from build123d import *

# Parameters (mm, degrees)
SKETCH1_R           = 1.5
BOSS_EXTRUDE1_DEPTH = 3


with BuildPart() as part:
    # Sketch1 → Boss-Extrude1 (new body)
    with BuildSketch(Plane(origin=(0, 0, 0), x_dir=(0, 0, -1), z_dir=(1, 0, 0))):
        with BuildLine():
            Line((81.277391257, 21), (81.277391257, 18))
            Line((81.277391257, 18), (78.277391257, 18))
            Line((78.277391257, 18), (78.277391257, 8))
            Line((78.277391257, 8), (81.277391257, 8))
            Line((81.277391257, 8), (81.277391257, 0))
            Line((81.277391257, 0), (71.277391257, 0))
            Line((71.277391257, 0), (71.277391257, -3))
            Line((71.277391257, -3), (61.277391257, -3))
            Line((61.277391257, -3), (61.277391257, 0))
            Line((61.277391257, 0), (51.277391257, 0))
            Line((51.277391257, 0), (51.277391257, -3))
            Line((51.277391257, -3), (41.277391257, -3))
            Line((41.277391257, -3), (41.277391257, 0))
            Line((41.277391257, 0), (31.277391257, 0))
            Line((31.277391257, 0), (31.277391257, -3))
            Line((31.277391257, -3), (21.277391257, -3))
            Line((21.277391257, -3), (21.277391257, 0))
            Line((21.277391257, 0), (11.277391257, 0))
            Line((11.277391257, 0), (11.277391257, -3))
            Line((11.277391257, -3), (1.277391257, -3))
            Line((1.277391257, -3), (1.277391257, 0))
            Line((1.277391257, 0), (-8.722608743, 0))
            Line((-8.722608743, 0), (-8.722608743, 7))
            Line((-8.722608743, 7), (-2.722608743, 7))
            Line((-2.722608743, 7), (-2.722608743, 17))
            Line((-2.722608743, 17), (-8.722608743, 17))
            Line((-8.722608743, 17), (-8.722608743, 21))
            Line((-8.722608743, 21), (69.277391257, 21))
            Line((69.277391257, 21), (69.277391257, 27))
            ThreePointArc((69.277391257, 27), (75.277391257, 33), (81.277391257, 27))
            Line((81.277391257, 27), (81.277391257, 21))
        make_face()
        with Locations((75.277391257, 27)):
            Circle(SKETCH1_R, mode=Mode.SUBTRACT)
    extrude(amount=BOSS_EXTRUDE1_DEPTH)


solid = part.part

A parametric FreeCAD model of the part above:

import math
import FreeCAD as App
import Part
import Sketcher
Q = App.Units.Quantity

doc = App.newDocument("Part")
body = doc.addObject("PartDesign::Body", "Body")

sketch1 = body.newObject("Sketcher::SketchObject", "Sketch")
sketch1.AttachmentSupport = (doc.getObject("YZ_Plane"), [""])
sketch1.MapMode = "FlatFace"
sketch1.addGeometry(Part.LineSegment(App.Vector(18, -78.3, 0), App.Vector(18, -81.3, 0)), False)
sketch1.addGeometry(Part.LineSegment(App.Vector(18, -81.3, 0), App.Vector(27, -81.3, 0)), False)
sketch1.addGeometry(Part.ArcOfCircle(Part.Circle(App.Vector(27, -75.3, 0), App.Vector(0, 0, 1), 6), math.radians(-90), math.radians(90)), False)
sketch1.addGeometry(Part.LineSegment(App.Vector(27, -69.3, 0), App.Vector(21, -69.3, 0)), False)
sketch1.addGeometry(Part.LineSegment(App.Vector(21, -69.3, 0), App.Vector(21, 8.7, 0)), False)
sketch1.addGeometry(Part.LineSegment(App.Vector(21, 8.7, 0), App.Vector(17, 8.7, 0)), False)
sketch1.addGeometry(Part.LineSegment(App.Vector(17, 8.7, 0), App.Vector(17, 2.7, 0)), False)
sketch1.addGeometry(Part.LineSegment(App.Vector(17, 2.7, 0), App.Vector(7, 2.7, 0)), False)
sketch1.addGeometry(Part.LineSegment(App.Vector(7, 2.7, 0), App.Vector(7, 8.7, 0)), False)
sketch1.addGeometry(Part.LineSegment(App.Vector(7, 8.7, 0), App.Vector(0, 8.7, 0)), False)
sketch1.addGeometry(Part.LineSegment(App.Vector(0, 8.7, 0), App.Vector(0, -1.3, 0)), False)
sketch1.addGeometry(Part.LineSegment(App.Vector(0, -1.3, 0), App.Vector(-3, -1.3, 0)), False)
sketch1.addGeometry(Part.LineSegment(App.Vector(-3, -1.3, 0), App.Vector(-3, -11.3, 0)), False)
sketch1.addGeometry(Part.LineSegment(App.Vector(-3, -11.3, 0), App.Vector(0, -11.3, 0)), False)
sketch1.addGeometry(Part.LineSegment(App.Vector(0, -11.3, 0), App.Vector(0, -21.3, 0)), False)
sketch1.addGeometry(Part.LineSegment(App.Vector(0, -21.3, 0), App.Vector(-3, -21.3, 0)), False)
sketch1.addGeometry(Part.LineSegment(App.Vector(-3, -21.3, 0), App.Vector(-3, -31.3, 0)), False)
sketch1.addGeometry(Part.LineSegment(App.Vector(-3, -31.3, 0), App.Vector(0, -31.3, 0)), False)
sketch1.addGeometry(Part.LineSegment(App.Vector(0, -31.3, 0), App.Vector(0, -41.3, 0)), False)
sketch1.addGeometry(Part.LineSegment(App.Vector(0, -41.3, 0), App.Vector(-3, -41.3, 0)), False)
sketch1.addGeometry(Part.LineSegment(App.Vector(-3, -41.3, 0), App.Vector(-3, -51.3, 0)), False)
sketch1.addGeometry(Part.LineSegment(App.Vector(-3, -51.3, 0), App.Vector(0, -51.3, 0)), False)
sketch1.addGeometry(Part.LineSegment(App.Vector(0, -51.3, 0), App.Vector(0, -61.3, 0)), False)
sketch1.addGeometry(Part.LineSegment(App.Vector(0, -61.3, 0), App.Vector(-3, -61.3, 0)), False)
sketch1.addGeometry(Part.LineSegment(App.Vector(-3, -61.3, 0), App.Vector(-3, -71.3, 0)), False)
sketch1.addGeometry(Part.LineSegment(App.Vector(-3, -71.3, 0), App.Vector(0, -71.3, 0)), False)
sketch1.addGeometry(Part.LineSegment(App.Vector(0, -71.3, 0), App.Vector(0, -81.3, 0)), False)
sketch1.addGeometry(Part.LineSegment(App.Vector(0, -81.3, 0), App.Vector(8, -81.3, 0)), False)
sketch1.addGeometry(Part.LineSegment(App.Vector(8, -81.3, 0), App.Vector(8, -78.3, 0)), False)
sketch1.addGeometry(Part.LineSegment(App.Vector(8, -78.3, 0), App.Vector(18, -78.3, 0)), False)
sketch1.addGeometry(Part.Circle(App.Vector(27, -75.3, 0), App.Vector(0, 0, 1), 1.5), False)
sketch1.addConstraint(Sketcher.Constraint("Coincident", 0, 2, 1, 1))
sketch1.addConstraint(Sketcher.Constraint("Tangent", 1, 2, 2, 1))
sketch1.addConstraint(Sketcher.Constraint("Tangent", 2, 2, 3, 1))
sketch1.addConstraint(Sketcher.Constraint("Coincident", 3, 2, 4, 1))
sketch1.addConstraint(Sketcher.Constraint("Coincident", 4, 2, 5, 1))
sketch1.addConstraint(Sketcher.Constraint("Coincident", 5, 2, 6, 1))
sketch1.addConstraint(Sketcher.Constraint("Coincident", 6, 2, 7, 1))
sketch1.addConstraint(Sketcher.Constraint("Coincident", 7, 2, 8, 1))
sketch1.addConstraint(Sketcher.Constraint("Coincident", 8, 2, 9, 1))
sketch1.addConstraint(Sketcher.Constraint("Coincident", 9, 2, 10, 1))
sketch1.addConstraint(Sketcher.Constraint("Coincident", 10, 2, 11, 1))
sketch1.addConstraint(Sketcher.Constraint("Coincident", 11, 2, 12, 1))
sketch1.addConstraint(Sketcher.Constraint("Coincident", 12, 2, 13, 1))
sketch1.addConstraint(Sketcher.Constraint("Coincident", 13, 2, 14, 1))
sketch1.addConstraint(Sketcher.Constraint("Coincident", 14, 2, 15, 1))
sketch1.addConstraint(Sketcher.Constraint("Coincident", 15, 2, 16, 1))
sketch1.addConstraint(Sketcher.Constraint("Coincident", 16, 2, 17, 1))
sketch1.addConstraint(Sketcher.Constraint("Coincident", 17, 2, 18, 1))
sketch1.addConstraint(Sketcher.Constraint("Coincident", 18, 2, 19, 1))
sketch1.addConstraint(Sketcher.Constraint("Coincident", 19, 2, 20, 1))
sketch1.addConstraint(Sketcher.Constraint("Coincident", 20, 2, 21, 1))
sketch1.addConstraint(Sketcher.Constraint("Coincident", 21, 2, 22, 1))
sketch1.addConstraint(Sketcher.Constraint("Coincident", 22, 2, 23, 1))
sketch1.addConstraint(Sketcher.Constraint("Coincident", 23, 2, 24, 1))
sketch1.addConstraint(Sketcher.Constraint("Coincident", 24, 2, 25, 1))
sketch1.addConstraint(Sketcher.Constraint("Coincident", 25, 2, 26, 1))
sketch1.addConstraint(Sketcher.Constraint("Coincident", 26, 2, 27, 1))
sketch1.addConstraint(Sketcher.Constraint("Coincident", 27, 2, 28, 1))
sketch1.addConstraint(Sketcher.Constraint("Coincident", 28, 2, 29, 1))
sketch1.addConstraint(Sketcher.Constraint("Coincident", 29, 2, 0, 1))
sketch1.addConstraint(Sketcher.Constraint("Vertical", 0))
sketch1.addConstraint(Sketcher.Constraint("Horizontal", 1))
sketch1.addConstraint(Sketcher.Constraint("Horizontal", 3))
sketch1.addConstraint(Sketcher.Constraint("Vertical", 4))
sketch1.addConstraint(Sketcher.Constraint("Horizontal", 5))
sketch1.addConstraint(Sketcher.Constraint("Vertical", 6))
sketch1.addConstraint(Sketcher.Constraint("Horizontal", 7))
sketch1.addConstraint(Sketcher.Constraint("Vertical", 8))
sketch1.addConstraint(Sketcher.Constraint("Horizontal", 9))
sketch1.addConstraint(Sketcher.Constraint("Vertical", 10))
sketch1.addConstraint(Sketcher.Constraint("Horizontal", 11))
sketch1.addConstraint(Sketcher.Constraint("Vertical", 12))
sketch1.addConstraint(Sketcher.Constraint("Horizontal", 13))
sketch1.addConstraint(Sketcher.Constraint("Vertical", 14))
sketch1.addConstraint(Sketcher.Constraint("Horizontal", 15))
sketch1.addConstraint(Sketcher.Constraint("Vertical", 16))
sketch1.addConstraint(Sketcher.Constraint("Horizontal", 17))
sketch1.addConstraint(Sketcher.Constraint("Vertical", 18))
sketch1.addConstraint(Sketcher.Constraint("Horizontal", 19))
sketch1.addConstraint(Sketcher.Constraint("Vertical", 20))
sketch1.addConstraint(Sketcher.Constraint("Horizontal", 21))
sketch1.addConstraint(Sketcher.Constraint("Vertical", 22))
sketch1.addConstraint(Sketcher.Constraint("Horizontal", 23))
sketch1.addConstraint(Sketcher.Constraint("Vertical", 24))
sketch1.addConstraint(Sketcher.Constraint("Horizontal", 25))
sketch1.addConstraint(Sketcher.Constraint("Vertical", 26))
sketch1.addConstraint(Sketcher.Constraint("Horizontal", 27))
sketch1.addConstraint(Sketcher.Constraint("Vertical", 28))
sketch1.addConstraint(Sketcher.Constraint("Horizontal", 29))
sketch1.addConstraint(Sketcher.Constraint("Coincident", 30, 3, 2, 3))
sketch1.addConstraint(Sketcher.Constraint("PointOnObject", 9, 2, -2))
sketch1.addConstraint(Sketcher.Constraint("PointOnObject", 13, 2, -2))
sketch1.addConstraint(Sketcher.Constraint("PointOnObject", 17, 2, -2))
sketch1.addConstraint(Sketcher.Constraint("PointOnObject", 21, 2, -2))
sketch1.addConstraint(Sketcher.Constraint("PointOnObject", 25, 2, -2))
sketch1.addConstraint(Sketcher.Constraint("Horizontal", 5, 2, 8, 2))
sketch1.addConstraint(Sketcher.Constraint("Horizontal", 1, 2, 26, 2))
sketch1.addConstraint(Sketcher.Constraint("Vertical", 12, 2, 15, 2))
sketch1.addConstraint(Sketcher.Constraint("Vertical", 16, 2, 19, 2))
sketch1.addConstraint(Sketcher.Constraint("Vertical", 20, 2, 23, 2))
sketch1.addConstraint(Sketcher.Constraint("Equal", 7, 29))
sketch1.addConstraint(Sketcher.Constraint("Equal", 25, 0))
sketch1.addConstraint(Sketcher.Constraint("Equal", 3, 6))
sketch1.addConstraint(Sketcher.Constraint("Equal", 29, 10))
sketch1.addConstraint(Sketcher.Constraint("Equal", 10, 12))
sketch1.addConstraint(Sketcher.Constraint("Equal", 12, 14))
sketch1.addConstraint(Sketcher.Constraint("Equal", 14, 16))
sketch1.addConstraint(Sketcher.Constraint("Equal", 16, 18))
sketch1.addConstraint(Sketcher.Constraint("Equal", 18, 20))
sketch1.addConstraint(Sketcher.Constraint("Equal", 20, 22))
sketch1.addConstraint(Sketcher.Constraint("Equal", 22, 24))
sketch1.addConstraint(Sketcher.Constraint("Equal", 24, 26))
sketch1.addConstraint(Sketcher.Constraint("Diameter", 30, Q("3 mm")))
sketch1.addConstraint(Sketcher.Constraint("Radius", 2, Q("6 mm")))
sketch1.addConstraint(Sketcher.Constraint("DistanceX", 1, 1, 1, 2, Q("9 mm")))
sketch1.addConstraint(Sketcher.Constraint("DistanceX", 3, 2, 3, 1, Q("6 mm")))
sketch1.addConstraint(Sketcher.Constraint("DistanceX", 5, 2, 5, 1, Q("4 mm")))
sketch1.addConstraint(Sketcher.Constraint("DistanceX", 7, 2, 7, 1, Q("10 mm")))
sketch1.addConstraint(Sketcher.Constraint("DistanceX", 9, 2, 9, 1, Q("7 mm")))
sketch1.addConstraint(Sketcher.Constraint("DistanceX", 11, 2, 11, 1, Q("3 mm")))
sketch1.addConstraint(Sketcher.Constraint("DistanceY", 2, 3, -1, 1, Q("75.277391 mm")))
pad1 = body.newObject("PartDesign::Pad", "Pad")
pad1.Profile = sketch1
pad1.Length = 3

doc.recompute()
